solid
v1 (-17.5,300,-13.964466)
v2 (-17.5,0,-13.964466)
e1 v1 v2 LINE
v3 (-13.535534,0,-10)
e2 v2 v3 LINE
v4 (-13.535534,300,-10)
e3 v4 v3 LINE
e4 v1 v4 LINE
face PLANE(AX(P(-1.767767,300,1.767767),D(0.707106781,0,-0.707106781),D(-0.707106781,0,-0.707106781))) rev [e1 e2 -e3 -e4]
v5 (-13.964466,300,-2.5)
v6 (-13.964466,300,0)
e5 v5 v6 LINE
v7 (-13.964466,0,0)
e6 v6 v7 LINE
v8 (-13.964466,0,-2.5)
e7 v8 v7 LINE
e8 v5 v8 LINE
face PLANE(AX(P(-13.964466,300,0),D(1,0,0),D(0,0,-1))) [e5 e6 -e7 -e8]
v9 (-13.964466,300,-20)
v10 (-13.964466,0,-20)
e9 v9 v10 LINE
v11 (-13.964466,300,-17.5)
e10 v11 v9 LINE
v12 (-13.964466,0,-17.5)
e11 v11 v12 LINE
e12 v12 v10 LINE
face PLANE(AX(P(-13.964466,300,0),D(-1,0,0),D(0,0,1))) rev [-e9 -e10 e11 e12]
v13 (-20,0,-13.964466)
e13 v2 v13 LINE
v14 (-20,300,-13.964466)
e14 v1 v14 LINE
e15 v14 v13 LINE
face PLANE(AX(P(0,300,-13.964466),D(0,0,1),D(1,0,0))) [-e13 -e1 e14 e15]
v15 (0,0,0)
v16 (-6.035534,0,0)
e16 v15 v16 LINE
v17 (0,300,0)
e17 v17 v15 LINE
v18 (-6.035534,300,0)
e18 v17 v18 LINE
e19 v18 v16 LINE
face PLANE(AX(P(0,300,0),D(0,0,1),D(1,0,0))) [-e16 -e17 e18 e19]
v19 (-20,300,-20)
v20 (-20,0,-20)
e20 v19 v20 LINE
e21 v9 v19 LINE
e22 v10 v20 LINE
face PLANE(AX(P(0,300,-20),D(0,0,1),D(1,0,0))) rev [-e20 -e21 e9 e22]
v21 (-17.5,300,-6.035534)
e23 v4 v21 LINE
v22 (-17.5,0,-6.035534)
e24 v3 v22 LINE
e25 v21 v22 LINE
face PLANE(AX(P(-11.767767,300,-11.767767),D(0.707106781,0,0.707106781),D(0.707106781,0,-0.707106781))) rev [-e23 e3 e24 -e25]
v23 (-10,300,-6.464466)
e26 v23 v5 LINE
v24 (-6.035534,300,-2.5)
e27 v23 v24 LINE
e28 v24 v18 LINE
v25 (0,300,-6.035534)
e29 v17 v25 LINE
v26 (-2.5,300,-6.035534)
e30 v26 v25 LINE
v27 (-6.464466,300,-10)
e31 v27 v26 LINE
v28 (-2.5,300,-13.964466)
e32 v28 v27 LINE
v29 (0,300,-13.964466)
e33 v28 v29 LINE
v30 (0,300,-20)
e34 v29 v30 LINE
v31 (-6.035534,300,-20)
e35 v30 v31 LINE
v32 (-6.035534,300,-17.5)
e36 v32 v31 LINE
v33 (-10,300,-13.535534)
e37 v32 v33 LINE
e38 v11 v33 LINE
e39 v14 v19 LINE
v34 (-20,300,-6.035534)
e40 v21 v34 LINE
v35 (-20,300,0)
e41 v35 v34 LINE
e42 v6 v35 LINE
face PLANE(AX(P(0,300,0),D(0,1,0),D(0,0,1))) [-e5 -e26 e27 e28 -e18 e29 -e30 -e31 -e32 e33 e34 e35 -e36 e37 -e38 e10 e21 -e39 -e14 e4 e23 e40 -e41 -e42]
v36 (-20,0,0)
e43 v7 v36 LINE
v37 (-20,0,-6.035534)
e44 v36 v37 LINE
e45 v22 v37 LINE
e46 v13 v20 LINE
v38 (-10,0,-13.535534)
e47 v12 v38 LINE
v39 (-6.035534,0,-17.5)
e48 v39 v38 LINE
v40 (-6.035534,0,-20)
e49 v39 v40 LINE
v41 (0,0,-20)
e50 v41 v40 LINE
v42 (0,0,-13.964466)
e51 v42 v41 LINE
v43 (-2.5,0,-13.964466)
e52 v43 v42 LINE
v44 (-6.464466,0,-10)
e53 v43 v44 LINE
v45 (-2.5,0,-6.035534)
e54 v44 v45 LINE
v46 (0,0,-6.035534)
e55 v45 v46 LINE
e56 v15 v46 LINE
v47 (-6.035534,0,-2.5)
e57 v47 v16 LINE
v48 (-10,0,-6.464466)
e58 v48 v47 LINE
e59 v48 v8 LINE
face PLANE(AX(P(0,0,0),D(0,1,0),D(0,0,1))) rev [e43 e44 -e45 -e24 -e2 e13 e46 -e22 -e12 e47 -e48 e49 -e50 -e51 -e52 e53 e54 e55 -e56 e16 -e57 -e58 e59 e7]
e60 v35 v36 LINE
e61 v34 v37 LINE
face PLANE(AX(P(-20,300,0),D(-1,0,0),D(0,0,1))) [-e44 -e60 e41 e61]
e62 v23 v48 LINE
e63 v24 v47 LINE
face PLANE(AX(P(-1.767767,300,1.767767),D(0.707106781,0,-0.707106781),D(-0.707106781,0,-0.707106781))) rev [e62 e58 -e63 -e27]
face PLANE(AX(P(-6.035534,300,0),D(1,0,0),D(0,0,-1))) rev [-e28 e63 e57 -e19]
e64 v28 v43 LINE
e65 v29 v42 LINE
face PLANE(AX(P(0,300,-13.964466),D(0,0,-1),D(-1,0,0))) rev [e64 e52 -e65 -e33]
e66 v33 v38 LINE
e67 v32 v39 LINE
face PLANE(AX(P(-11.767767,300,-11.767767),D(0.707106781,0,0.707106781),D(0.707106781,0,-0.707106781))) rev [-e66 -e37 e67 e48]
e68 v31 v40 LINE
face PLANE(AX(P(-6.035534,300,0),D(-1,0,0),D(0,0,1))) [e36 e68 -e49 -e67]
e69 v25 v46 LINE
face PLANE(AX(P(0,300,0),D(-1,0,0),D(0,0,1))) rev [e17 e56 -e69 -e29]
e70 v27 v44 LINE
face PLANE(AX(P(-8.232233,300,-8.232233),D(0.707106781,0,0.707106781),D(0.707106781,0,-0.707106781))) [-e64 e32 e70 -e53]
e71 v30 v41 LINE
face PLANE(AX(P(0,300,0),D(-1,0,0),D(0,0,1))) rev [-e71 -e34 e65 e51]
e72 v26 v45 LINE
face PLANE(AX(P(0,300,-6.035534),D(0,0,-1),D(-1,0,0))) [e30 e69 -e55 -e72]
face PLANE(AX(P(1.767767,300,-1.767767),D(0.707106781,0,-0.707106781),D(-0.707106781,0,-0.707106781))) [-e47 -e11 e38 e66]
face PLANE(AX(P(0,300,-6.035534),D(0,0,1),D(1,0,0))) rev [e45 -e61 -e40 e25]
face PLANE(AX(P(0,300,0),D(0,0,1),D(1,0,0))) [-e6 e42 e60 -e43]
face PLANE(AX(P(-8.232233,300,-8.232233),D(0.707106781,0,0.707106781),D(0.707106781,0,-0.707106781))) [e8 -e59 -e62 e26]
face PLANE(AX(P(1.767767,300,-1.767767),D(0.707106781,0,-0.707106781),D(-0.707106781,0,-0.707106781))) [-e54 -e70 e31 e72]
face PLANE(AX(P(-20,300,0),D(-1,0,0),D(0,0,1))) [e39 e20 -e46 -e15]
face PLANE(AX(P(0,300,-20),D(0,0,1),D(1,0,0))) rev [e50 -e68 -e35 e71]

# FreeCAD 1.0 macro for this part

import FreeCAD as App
import Part
import Sketcher
from FreeCAD import Vector
Q = App.Units.Quantity

doc = App.newDocument("Part")
body = doc.addObject("PartDesign::Body", "Body")

# Sketch on XZ plane
sketch1 = body.newObject("Sketcher::SketchObject", "Sketch")
sketch1.AttachmentSupport = (doc.getObject("XZ_Plane"), [""])
sketch1.MapMode = "FlatFace"
sketch1.addGeometry([
    Part.LineSegment(Vector(-6, -2.5, 0), Vector(-6, 0, 0)),  # 0
    Part.LineSegment(Vector(-6, 0, 0), Vector(0, 0, 0)),  # 1
    Part.LineSegment(Vector(0, 0, 0), Vector(0, -6, 0)),  # 2
    Part.LineSegment(Vector(0, -6, 0), Vector(-2.5, -6, 0)),  # 3
    Part.LineSegment(Vector(-2.5, -6, 0), Vector(-6.5, -10, 0)),  # 4
    Part.LineSegment(Vector(-6.5, -10, 0), Vector(-2.5, -14, 0)),  # 5
    Part.LineSegment(Vector(-2.5, -14, 0), Vector(0, -14, 0)),  # 6
    Part.LineSegment(Vector(0, -14, 0), Vector(0, -20, 0)),  # 7
    Part.LineSegment(Vector(0, -20, 0), Vector(-6, -20, 0)),  # 8
    Part.LineSegment(Vector(-6, -20, 0), Vector(-6, -17.5, 0)),  # 9
    Part.LineSegment(Vector(-6, -17.5, 0), Vector(-10, -13.5, 0)),  # 10
    Part.LineSegment(Vector(-10, -13.5, 0), Vector(-14, -17.5, 0)),  # 11
    Part.LineSegment(Vector(-14, -17.5, 0), Vector(-14, -20, 0)),  # 12
    Part.LineSegment(Vector(-14, -20, 0), Vector(-20, -20, 0)),  # 13
    Part.LineSegment(Vector(-20, -20, 0), Vector(-20, -14, 0)),  # 14
    Part.LineSegment(Vector(-20, -14, 0), Vector(-17.5, -14, 0)),  # 15
    Part.LineSegment(Vector(-17.5, -14, 0), Vector(-13.5, -10, 0)),  # 16
    Part.LineSegment(Vector(-13.5, -10, 0), Vector(-17.5, -6, 0)),  # 17
    Part.LineSegment(Vector(-17.5, -6, 0), Vector(-20, -6, 0)),  # 18
    Part.LineSegment(Vector(-20, -6, 0), Vector(-20, 0, 0)),  # 19
    Part.LineSegment(Vector(-20, 0, 0), Vector(-14, 0, 0)),  # 20
    Part.LineSegment(Vector(-14, 0, 0), Vector(-14, -2.5, 0)),  # 21
    Part.LineSegment(Vector(-14, -2.5, 0), Vector(-10, -6.5, 0)),  # 22
    Part.LineSegment(Vector(-10, -6.5, 0), Vector(-6, -2.5, 0)),  # 23
], False)
sketch1.addConstraint([
    Sketcher.Constraint("Coincident", 0, 2, 1, 1),
    Sketcher.Constraint("Coincident", 1, 2, 2, 1),
    Sketcher.Constraint("Coincident", 2, 2, 3, 1),
    Sketcher.Constraint("Coincident", 3, 2, 4, 1),
    Sketcher.Constraint("Coincident", 4, 2, 5, 1),
    Sketcher.Constraint("Coincident", 5, 2, 6, 1),
    Sketcher.Constraint("Coincident", 6, 2, 7, 1),
    Sketcher.Constraint("Coincident", 7, 2, 8, 1),
    Sketcher.Constraint("Coincident", 8, 2, 9, 1),
    Sketcher.Constraint("Coincident", 9, 2, 10, 1),
    Sketcher.Constraint("Coincident", 10, 2, 11, 1),
    Sketcher.Constraint("Coincident", 11, 2, 12, 1),
    Sketcher.Constraint("Coincident", 12, 2, 13, 1),
    Sketcher.Constraint("Coincident", 13, 2, 14, 1),
    Sketcher.Constraint("Coincident", 14, 2, 15, 1),
    Sketcher.Constraint("Coincident", 15, 2, 16, 1),
    Sketcher.Constraint("Coincident", 16, 2, 17, 1),
    Sketcher.Constraint("Coincident", 17, 2, 18, 1),
    Sketcher.Constraint("Coincident", 18, 2, 19, 1),
    Sketcher.Constraint("Coincident", 19, 2, 20, 1),
    Sketcher.Constraint("Coincident", 20, 2, 21, 1),
    Sketcher.Constraint("Coincident", 21, 2, 22, 1),
    Sketcher.Constraint("Coincident", 22, 2, 23, 1),
    Sketcher.Constraint("Coincident", 23, 2, 0, 1),
    Sketcher.Constraint("Vertical", 0),
    Sketcher.Constraint("Horizontal", 1),
    Sketcher.Constraint("Vertical", 2),
    Sketcher.Constraint("Horizontal", 3),
    Sketcher.Constraint("Horizontal", 6),
    Sketcher.Constraint("Vertical", 7),
    Sketcher.Constraint("Horizontal", 8),
    Sketcher.Constraint("Vertical", 9),
    Sketcher.Constraint("Vertical", 12),
    Sketcher.Constraint("Horizontal", 13),
    Sketcher.Constraint("Vertical", 14),
    Sketcher.Constraint("Horizontal", 15),
    Sketcher.Constraint("Horizontal", 18),
    Sketcher.Constraint("Vertical", 19),
    Sketcher.Constraint("Horizontal", 20),
    Sketcher.Constraint("Vertical", 21),
    Sketcher.Constraint("Coincident", 1, 2, -1, 1),
    Sketcher.Constraint("PointOnObject", 6, 2, -2),
    Sketcher.Constraint("PointOnObject", 19, 2, -1),
    Sketcher.Constraint("Perpendicular", 4, 5),
    Sketcher.Constraint("Parallel", 5, 10),
    Sketcher.Constraint("Perpendicular", 10, 11),
    Sketcher.Constraint("Parallel", 11, 16),
    Sketcher.Constraint("Perpendicular", 16, 17),
    Sketcher.Constraint("Parallel", 17, 22),
    Sketcher.Constraint("Perpendicular", 22, 23),
    Sketcher.Constraint("Horizontal", 9, 2, 11, 2),
    Sketcher.Constraint("Horizontal", 8, 2, 12, 2),
    Sketcher.Constraint("Horizontal", 6, 2, 14, 2),
    Sketcher.Constraint("Horizontal", 4, 2, 16, 2),
    Sketcher.Constraint("Horizontal", 3, 2, 17, 2),
    Sketcher.Constraint("Horizontal", 21, 2, 23, 2),
    Sketcher.Constraint("Vertical", 3, 2, 5, 2),
    Sketcher.Constraint("Vertical", 0, 2, 8, 2),
    Sketcher.Constraint("Vertical", 15, 2, 17, 2),
    Sketcher.Constraint("Vertical", 14, 2, 18, 2),
    Sketcher.Constraint("Vertical", 12, 2, 20, 2),
    Sketcher.Constraint("Equal", 8, 13),
    Sketcher.Constraint("Equal", 6, 15),
    Sketcher.Constraint("Equal", 18, 0),
    Sketcher.Constraint("Equal", 20, 2),
    Sketcher.Constraint("Equal", 2, 7),
    Sketcher.Constraint("Equal", 0, 9),
    Sketcher.Constraint("Equal", 5, 10),
    Sketcher.Constraint("DistanceX", 3, 2, 3, 1, Q("2.5 mm")),
    Sketcher.Constraint("DistanceY", 4, 2, -1, 1, Q("10 mm")),
    Sketcher.Constraint("Distance", 4, Q("5.606602 mm")),
])
pad1 = body.newObject("PartDesign::Pad", "Pad")
pad1.Profile = sketch1
pad1.Length = 300
pad1.Reversed = True

doc.recompute()
